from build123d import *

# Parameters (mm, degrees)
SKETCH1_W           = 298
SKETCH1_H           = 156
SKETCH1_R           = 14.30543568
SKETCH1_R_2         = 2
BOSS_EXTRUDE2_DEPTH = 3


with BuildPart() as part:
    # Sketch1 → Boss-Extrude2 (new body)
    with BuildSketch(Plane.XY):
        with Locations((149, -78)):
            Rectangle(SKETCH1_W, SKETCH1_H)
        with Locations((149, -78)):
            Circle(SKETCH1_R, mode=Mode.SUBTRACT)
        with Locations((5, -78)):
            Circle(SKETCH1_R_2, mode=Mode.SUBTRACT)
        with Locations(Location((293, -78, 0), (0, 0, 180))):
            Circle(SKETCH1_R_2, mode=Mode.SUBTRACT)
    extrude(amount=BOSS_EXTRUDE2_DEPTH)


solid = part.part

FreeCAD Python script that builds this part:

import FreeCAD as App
import Part
import Sketcher
Q = App.Units.Quantity

doc = App.newDocument("Part")
body = doc.addObject("PartDesign::Body", "Body")

# Sketch on XY plane
sketch1 = doc.addObject("Sketcher::SketchObject", "Sketch")
body.addObject(sketch1)
sketch1.AttachmentSupport = (doc.XY_Plane, [""])
sketch1.MapMode = "FlatFace"
sketch1.addGeometry(Part.LineSegment(App.Vector(0, 0, 0), App.Vector(0, -156, 0)), False)
sketch1.addGeometry(Part.LineSegment(App.Vector(0, -156, 0), App.Vector(298, -156, 0)), False)
sketch1.addGeometry(Part.LineSegment(App.Vector(298, -156, 0), App.Vector(298, 0, 0)), False)
sketch1.addGeometry(Part.LineSegment(App.Vector(298, 0, 0), App.Vector(0, 0, 0)), False)
sketch1.addGeometry(Part.Circle(App.Vector(5, -78, 0), App.Vector(0, 0, 1), 2), False)
sketch1.addGeometry(Part.Circle(App.Vector(149, -78, 0), App.Vector(0, 0, 1), 14.3), False)
sketch1.addGeometry(Part.Circle(App.Vector(293, -78, 0), App.Vector(0, 0, 1), 2), False)
sketch1.addConstraint(Sketcher.Constraint("Coincident", 0, 2, 1, 1))
sketch1.addConstraint(Sketcher.Constraint("Coincident", 1, 2, 2, 1))
sketch1.addConstraint(Sketcher.Constraint("Coincident", 2, 2, 3, 1))
sketch1.addConstraint(Sketcher.Constraint("Coincident", 3, 2, 0, 1))
sketch1.addConstraint(Sketcher.Constraint("Vertical", 0))
sketch1.addConstraint(Sketcher.Constraint("Horizontal", 1))
sketch1.addConstraint(Sketcher.Constraint("Vertical", 2))
sketch1.addConstraint(Sketcher.Constraint("Horizontal", 3))
sketch1.addConstraint(Sketcher.Constraint("Coincident", 3, 2, -1, 1))
sketch1.addConstraint(Sketcher.Constraint("Equal", 4, 6))
sketch1.addConstraint(Sketcher.Constraint("Horizontal", 4, 3, 5, 3))
sketch1.addConstraint(Sketcher.Constraint("Horizontal", 5, 3, 6, 3))
sketch1.addConstraint(Sketcher.Constraint("Diameter", 4, Q("4 mm")))
sketch1.addConstraint(Sketcher.Constraint("DistanceX", 1, 1, 1, 2, Q("298 mm")))
sketch1.addConstraint(Sketcher.Constraint("DistanceY", 0, 2, 0, 1, Q("156 mm")))
sketch1.addConstraint(Sketcher.Constraint("DistanceX", -1, 1, 4, 3, Q("5 mm")))
sketch1.addConstraint(Sketcher.Constraint("DistanceY", 4, 3, -1, 1, Q("78 mm")))
sketch1.addConstraint(Sketcher.Constraint("DistanceX", -1, 1, 5, 3, Q("149 mm")))
sketch1.addConstraint(Sketcher.Constraint("DistanceX", -1, 1, 6, 3, Q("293 mm")))
sketch1.addConstraint(Sketcher.Constraint("Diameter", 5, Q("28.610871 mm")))
pad1 = doc.addObject("PartDesign::Pad", "Pad")
body.addObject(pad1)
pad1.Profile = sketch1
pad1.Length = 3

doc.recompute()
